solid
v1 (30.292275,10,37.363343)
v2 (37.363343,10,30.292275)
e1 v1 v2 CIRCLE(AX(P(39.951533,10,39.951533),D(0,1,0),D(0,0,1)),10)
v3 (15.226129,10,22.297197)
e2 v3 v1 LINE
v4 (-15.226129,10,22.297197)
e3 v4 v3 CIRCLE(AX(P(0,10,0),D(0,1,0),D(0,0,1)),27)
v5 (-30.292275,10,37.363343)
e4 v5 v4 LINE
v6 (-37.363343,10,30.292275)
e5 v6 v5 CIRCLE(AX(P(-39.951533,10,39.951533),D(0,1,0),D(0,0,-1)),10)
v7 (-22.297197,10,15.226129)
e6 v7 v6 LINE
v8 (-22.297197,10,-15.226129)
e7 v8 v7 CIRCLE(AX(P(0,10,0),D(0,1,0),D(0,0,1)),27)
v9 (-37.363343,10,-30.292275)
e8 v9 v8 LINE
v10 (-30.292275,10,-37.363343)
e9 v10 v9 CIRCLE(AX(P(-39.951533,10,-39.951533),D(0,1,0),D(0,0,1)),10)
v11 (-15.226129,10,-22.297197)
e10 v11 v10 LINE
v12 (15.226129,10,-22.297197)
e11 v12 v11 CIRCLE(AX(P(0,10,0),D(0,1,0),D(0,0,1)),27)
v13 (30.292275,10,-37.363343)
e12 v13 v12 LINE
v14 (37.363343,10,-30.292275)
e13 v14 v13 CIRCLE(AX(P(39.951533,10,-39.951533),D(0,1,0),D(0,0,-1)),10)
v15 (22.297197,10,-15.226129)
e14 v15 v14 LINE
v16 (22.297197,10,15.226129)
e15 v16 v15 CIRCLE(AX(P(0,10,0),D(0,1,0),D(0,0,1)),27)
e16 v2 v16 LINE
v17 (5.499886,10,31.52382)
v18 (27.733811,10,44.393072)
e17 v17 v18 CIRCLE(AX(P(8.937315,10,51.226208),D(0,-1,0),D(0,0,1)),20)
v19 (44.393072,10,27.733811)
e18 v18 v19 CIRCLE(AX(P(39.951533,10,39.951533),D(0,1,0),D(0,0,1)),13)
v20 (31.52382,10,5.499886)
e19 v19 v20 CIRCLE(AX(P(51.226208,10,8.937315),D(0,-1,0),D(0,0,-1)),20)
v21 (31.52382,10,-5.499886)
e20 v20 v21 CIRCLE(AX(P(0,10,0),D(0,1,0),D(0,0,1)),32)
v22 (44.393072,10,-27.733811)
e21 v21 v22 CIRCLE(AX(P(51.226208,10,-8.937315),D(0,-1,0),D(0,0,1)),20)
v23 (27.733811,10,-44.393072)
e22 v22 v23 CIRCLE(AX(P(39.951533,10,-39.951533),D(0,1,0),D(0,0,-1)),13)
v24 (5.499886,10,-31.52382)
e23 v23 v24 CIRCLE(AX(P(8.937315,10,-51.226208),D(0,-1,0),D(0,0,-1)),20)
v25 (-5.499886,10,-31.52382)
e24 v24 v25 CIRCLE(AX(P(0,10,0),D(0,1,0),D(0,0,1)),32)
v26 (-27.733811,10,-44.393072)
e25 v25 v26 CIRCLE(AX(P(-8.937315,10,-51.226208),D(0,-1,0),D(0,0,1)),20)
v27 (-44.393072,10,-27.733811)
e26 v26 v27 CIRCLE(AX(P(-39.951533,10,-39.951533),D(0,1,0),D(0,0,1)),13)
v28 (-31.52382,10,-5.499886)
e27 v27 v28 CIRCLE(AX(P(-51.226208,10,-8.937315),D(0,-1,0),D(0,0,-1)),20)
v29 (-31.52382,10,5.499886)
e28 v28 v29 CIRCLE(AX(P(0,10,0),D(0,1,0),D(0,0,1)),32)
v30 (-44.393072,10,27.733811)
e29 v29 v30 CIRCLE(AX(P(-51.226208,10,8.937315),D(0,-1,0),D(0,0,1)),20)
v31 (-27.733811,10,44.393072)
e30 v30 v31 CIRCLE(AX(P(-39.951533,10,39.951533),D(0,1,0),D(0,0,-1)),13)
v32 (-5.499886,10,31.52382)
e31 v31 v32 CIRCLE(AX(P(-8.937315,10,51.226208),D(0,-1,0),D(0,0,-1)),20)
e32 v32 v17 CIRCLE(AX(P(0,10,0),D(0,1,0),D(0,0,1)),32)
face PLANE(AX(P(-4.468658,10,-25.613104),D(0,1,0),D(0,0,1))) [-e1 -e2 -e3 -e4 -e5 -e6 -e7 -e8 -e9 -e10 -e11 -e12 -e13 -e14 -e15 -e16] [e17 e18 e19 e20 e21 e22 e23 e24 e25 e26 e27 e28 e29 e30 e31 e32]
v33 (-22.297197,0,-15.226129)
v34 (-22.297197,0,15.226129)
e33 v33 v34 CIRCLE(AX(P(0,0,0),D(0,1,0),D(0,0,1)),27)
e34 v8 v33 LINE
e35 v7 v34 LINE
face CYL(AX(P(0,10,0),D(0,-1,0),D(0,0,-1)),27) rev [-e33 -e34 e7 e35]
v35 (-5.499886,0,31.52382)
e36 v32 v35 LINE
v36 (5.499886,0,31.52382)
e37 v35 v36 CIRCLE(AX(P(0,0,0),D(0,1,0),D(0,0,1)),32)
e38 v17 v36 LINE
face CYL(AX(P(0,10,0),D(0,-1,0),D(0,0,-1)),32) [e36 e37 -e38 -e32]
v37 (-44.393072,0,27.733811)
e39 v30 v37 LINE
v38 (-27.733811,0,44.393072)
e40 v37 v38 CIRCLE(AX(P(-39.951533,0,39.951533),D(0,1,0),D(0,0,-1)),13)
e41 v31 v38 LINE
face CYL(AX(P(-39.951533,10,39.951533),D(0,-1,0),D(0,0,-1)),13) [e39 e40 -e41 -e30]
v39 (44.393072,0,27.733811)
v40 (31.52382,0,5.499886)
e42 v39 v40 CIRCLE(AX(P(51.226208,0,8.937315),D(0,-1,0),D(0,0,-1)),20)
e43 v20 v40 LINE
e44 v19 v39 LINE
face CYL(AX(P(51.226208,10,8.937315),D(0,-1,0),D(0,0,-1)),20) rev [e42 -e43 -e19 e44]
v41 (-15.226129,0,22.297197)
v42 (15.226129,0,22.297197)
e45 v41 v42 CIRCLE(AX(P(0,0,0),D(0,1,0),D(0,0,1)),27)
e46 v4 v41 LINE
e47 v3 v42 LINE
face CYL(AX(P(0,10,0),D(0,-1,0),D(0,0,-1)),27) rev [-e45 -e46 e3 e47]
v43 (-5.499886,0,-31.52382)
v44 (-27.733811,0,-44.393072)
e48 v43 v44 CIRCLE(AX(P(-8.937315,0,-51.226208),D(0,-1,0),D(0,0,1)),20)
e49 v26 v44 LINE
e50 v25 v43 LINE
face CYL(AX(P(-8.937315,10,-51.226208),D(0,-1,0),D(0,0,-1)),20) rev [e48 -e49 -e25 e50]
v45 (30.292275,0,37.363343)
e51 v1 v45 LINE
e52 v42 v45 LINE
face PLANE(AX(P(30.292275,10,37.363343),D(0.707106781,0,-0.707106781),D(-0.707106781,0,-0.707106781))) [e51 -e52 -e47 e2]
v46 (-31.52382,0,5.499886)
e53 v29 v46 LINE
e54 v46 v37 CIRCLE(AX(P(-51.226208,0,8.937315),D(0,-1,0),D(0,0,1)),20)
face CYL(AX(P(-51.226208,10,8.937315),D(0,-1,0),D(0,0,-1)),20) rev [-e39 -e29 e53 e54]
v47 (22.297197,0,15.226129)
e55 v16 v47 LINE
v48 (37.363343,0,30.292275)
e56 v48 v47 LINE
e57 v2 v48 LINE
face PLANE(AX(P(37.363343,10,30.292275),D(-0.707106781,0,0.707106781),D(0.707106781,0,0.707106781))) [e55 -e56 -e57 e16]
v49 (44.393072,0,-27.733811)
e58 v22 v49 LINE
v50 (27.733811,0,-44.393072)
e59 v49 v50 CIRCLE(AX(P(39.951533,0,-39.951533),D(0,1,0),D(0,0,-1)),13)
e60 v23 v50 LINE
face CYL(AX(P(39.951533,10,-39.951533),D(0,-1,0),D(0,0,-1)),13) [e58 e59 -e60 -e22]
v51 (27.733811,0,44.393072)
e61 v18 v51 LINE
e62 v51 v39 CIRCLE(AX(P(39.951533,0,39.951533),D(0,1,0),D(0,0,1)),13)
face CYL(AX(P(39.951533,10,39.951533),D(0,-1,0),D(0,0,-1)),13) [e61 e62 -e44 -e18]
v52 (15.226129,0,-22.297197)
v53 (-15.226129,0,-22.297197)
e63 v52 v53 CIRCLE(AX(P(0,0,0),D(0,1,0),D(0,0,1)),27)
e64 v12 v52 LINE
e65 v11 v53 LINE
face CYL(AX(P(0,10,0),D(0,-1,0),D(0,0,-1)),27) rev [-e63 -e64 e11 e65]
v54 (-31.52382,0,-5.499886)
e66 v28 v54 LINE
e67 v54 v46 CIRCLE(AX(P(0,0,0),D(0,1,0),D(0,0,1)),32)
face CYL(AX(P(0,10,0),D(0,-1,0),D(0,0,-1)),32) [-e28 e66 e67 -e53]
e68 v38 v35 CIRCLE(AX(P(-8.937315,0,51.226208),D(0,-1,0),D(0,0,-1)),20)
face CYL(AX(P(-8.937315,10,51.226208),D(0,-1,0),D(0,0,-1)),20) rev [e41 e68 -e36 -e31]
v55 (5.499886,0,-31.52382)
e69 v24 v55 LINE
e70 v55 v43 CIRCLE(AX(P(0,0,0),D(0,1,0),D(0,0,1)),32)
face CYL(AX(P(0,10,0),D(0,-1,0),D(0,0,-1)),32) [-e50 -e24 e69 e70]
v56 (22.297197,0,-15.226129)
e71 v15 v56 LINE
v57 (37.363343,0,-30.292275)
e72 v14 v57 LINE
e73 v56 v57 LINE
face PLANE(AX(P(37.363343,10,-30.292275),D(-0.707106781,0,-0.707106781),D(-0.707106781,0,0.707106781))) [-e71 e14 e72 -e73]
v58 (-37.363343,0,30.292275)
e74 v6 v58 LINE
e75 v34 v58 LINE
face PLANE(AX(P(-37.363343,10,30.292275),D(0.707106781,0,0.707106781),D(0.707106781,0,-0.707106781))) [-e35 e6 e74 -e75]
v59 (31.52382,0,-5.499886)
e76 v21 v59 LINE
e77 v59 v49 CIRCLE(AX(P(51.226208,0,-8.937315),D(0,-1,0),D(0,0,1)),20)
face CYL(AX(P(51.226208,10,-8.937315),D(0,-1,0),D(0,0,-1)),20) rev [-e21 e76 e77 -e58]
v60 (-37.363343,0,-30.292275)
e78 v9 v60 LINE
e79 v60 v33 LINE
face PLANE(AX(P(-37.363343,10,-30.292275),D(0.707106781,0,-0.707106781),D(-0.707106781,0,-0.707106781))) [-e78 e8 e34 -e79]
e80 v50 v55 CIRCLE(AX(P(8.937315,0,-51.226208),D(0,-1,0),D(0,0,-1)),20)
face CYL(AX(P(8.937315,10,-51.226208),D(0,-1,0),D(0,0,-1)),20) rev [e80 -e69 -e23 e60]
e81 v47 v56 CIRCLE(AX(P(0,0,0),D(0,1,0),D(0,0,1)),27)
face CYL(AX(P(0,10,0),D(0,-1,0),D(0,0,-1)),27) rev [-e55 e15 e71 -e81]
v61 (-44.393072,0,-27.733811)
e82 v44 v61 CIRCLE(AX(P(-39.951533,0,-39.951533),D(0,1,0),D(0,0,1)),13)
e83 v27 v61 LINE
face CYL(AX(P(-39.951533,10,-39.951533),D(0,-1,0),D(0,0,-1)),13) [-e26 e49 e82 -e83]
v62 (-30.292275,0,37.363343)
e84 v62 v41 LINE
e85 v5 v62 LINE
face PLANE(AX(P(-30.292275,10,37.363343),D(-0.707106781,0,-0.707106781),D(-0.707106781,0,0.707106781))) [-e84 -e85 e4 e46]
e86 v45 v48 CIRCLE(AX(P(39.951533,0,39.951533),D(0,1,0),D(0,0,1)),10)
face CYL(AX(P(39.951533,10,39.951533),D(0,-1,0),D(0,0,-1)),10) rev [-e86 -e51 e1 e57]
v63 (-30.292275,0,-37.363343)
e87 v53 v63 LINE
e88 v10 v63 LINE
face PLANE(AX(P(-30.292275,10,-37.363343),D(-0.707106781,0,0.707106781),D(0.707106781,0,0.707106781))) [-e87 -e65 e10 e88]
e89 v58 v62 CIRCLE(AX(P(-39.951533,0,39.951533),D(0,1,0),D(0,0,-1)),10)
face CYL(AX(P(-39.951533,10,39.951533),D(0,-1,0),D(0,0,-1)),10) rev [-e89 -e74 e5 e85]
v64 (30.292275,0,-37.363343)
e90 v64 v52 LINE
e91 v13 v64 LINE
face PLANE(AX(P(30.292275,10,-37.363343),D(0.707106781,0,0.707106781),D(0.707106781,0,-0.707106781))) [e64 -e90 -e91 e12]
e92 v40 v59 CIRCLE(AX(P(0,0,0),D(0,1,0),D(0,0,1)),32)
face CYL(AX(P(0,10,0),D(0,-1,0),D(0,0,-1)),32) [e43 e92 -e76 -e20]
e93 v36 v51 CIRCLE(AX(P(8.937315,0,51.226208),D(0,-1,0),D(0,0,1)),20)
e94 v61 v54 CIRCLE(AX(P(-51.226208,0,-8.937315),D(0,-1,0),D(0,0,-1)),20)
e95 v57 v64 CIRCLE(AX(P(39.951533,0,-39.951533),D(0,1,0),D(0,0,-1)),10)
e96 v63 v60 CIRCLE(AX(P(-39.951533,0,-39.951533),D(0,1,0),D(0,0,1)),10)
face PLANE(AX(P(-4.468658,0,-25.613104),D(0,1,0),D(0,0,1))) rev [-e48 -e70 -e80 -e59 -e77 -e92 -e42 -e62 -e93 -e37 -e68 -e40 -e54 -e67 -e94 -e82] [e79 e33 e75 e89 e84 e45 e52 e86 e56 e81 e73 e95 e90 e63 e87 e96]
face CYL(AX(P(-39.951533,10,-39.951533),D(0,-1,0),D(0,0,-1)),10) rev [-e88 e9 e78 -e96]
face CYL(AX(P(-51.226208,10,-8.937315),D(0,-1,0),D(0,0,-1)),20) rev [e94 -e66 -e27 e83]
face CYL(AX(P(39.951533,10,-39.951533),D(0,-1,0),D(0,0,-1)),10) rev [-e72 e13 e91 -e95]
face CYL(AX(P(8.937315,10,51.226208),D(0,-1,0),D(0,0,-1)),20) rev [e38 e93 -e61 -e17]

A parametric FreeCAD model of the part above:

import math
import FreeCAD as App
import Part
import Sketcher
from FreeCAD import Vector

doc = App.newDocument("Part")
body = doc.addObject("PartDesign::Body", "Body")

sketch1 = body.newObject("Sketcher::SketchObject", "Sketch")
sketch1.AttachmentSupport = (doc.getObject("XZ_Plane"), [""])
sketch1.MapMode = "FlatFace"
sketch1.addGeometry([
    Part.ArcOfCircle(Part.Circle(Vector(0, 0, 0), Vector(0, 0, 1), 32), math.radians(170.1), math.radians(189.9)),
    Part.ArcOfCircle(Part.Circle(Vector(-51, 9, 0), Vector(0, 0, 1), 20), math.radians(-10), math.radians(70)),
    Part.ArcOfCircle(Part.Circle(Vector(-40, 40, 0), Vector(0, 0, 1), 13), math.radians(20), math.radians(250)),
    Part.ArcOfCircle(Part.Circle(Vector(-9, 51, 0), Vector(0, 0, 1), 20), math.radians(-160), math.radians(-80)),
    Part.ArcOfCircle(Part.Circle(Vector(0, 0, 0), Vector(0, 0, 1), 32), math.radians(80.1), math.radians(99.9)),
    Part.ArcOfCircle(Part.Circle(Vector(9, 51, 0), Vector(0, 0, 1), 20), math.radians(-100), math.radians(-20)),
    Part.ArcOfCircle(Part.Circle(Vector(40, 40, 0), Vector(0, 0, 1), 13), math.radians(-70), math.radians(160)),
    Part.ArcOfCircle(Part.Circle(Vector(51, 9, 0), Vector(0, 0, 1), 20), math.radians(110), math.radians(190)),
    Part.ArcOfCircle(Part.Circle(Vector(0, 0, 0), Vector(0, 0, 1), 32), math.radians(-9.9), math.radians(9.9)),
    Part.ArcOfCircle(Part.Circle(Vector(51, -9, 0), Vector(0, 0, 1), 20), math.radians(170), math.radians(250)),
    Part.ArcOfCircle(Part.Circle(Vector(40, -40, 0), Vector(0, 0, 1), 13), math.radians(-160), math.radians(70)),
    Part.ArcOfCircle(Part.Circle(Vector(9, -51, 0), Vector(0, 0, 1), 20), math.radians(20), math.radians(100)),
    Part.ArcOfCircle(Part.Circle(Vector(0, 0, 0), Vector(0, 0, 1), 32), math.radians(-99.9), math.radians(-80.1)),
    Part.ArcOfCircle(Part.Circle(Vector(-9, -51, 0), Vector(0, 0, 1), 20), math.radians(80), math.radians(160)),
    Part.ArcOfCircle(Part.Circle(Vector(-40, -40, 0), Vector(0, 0, 1), 13), math.radians(110), math.radians(340)),
    Part.ArcOfCircle(Part.Circle(Vector(-51, -9, 0), Vector(0, 0, 1), 20), math.radians(-70), math.radians(10)),
    Part.LineSegment(Vector(-22, -15, 0), Vector(-37, -30, 0)),
    Part.ArcOfCircle(Part.Circle(Vector(-40, -40, 0), Vector(0, 0, 1), 10), math.radians(75), math.radians(375)),
    Part.LineSegment(Vector(-30, -37, 0), Vector(-15, -22, 0)),
    Part.ArcOfCircle(Part.Circle(Vector(0, 0, 0), Vector(0, 0, 1), 27), math.radians(-124), math.radians(-56)),
    Part.LineSegment(Vector(15, -22, 0), Vector(30, -37, 0)),
    Part.ArcOfCircle(Part.Circle(Vector(40, -40, 0), Vector(0, 0, 1), 10), math.radians(165), math.radians(465)),
    Part.LineSegment(Vector(37, -30, 0), Vector(22, -15, 0)),
    Part.ArcOfCircle(Part.Circle(Vector(0, 0, 0), Vector(0, 0, 1), 27), math.radians(-34), math.radians(34)),
    Part.LineSegment(Vector(22, 15, 0), Vector(37, 30, 0)),
    Part.ArcOfCircle(Part.Circle(Vector(40, 40, 0), Vector(0, 0, 1), 10), math.radians(-105), math.radians(195)),
    Part.LineSegment(Vector(30, 37, 0), Vector(15, 22, 0)),
    Part.ArcOfCircle(Part.Circle(Vector(0, 0, 0), Vector(0, 0, 1), 27), math.radians(56), math.radians(124)),
    Part.LineSegment(Vector(-15, 22, 0), Vector(-30, 37, 0)),
    Part.ArcOfCircle(Part.Circle(Vector(-40, 40, 0), Vector(0, 0, 1), 10), math.radians(-15), math.radians(285)),
    Part.LineSegment(Vector(-37, 30, 0), Vector(-22, 15, 0)),
    Part.ArcOfCircle(Part.Circle(Vector(0, 0, 0), Vector(0, 0, 1), 27), math.radians(146), math.radians(214)),
], False)
sketch1.addConstraint([
    Sketcher.Constraint("Tangent", 0, 1, 1, 1),
    Sketcher.Constraint("Tangent", 1, 2, 2, 2),
    Sketcher.Constraint("Tangent", 2, 1, 3, 1),
    Sketcher.Constraint("Tangent", 3, 2, 4, 2),
    Sketcher.Constraint("Tangent", 4, 1, 5, 1),
    Sketcher.Constraint("Tangent", 5, 2, 6, 2),
    Sketcher.Constraint("Tangent", 6, 1, 7, 1),
    Sketcher.Constraint("Tangent", 7, 2, 8, 2),
    Sketcher.Constraint("Tangent", 8, 1, 9, 1),
    Sketcher.Constraint("Tangent", 9, 2, 10, 2),
    Sketcher.Constraint("Tangent", 10, 1, 11, 1),
    Sketcher.Constraint("Tangent", 11, 2, 12, 2),
    Sketcher.Constraint("Tangent", 12, 1, 13, 1),
    Sketcher.Constraint("Tangent", 13, 2, 14, 2),
    Sketcher.Constraint("Tangent", 14, 1, 15, 1),
    Sketcher.Constraint("Tangent", 15, 2, 0, 2),
    Sketcher.Constraint("Coincident", 16, 2, 17, 1),
    Sketcher.Constraint("Coincident", 17, 2, 18, 1),
    Sketcher.Constraint("Coincident", 18, 2, 19, 1),
    Sketcher.Constraint("Coincident", 19, 2, 20, 1),
    Sketcher.Constraint("Coincident", 20, 2, 21, 1),
    Sketcher.Constraint("Coincident", 21, 2, 22, 1),
    Sketcher.Constraint("Coincident", 22, 2, 23, 1),
    Sketcher.Constraint("Coincident", 23, 2, 24, 1),
    Sketcher.Constraint("Coincident", 24, 2, 25, 1),
    Sketcher.Constraint("Coincident", 25, 2, 26, 1),
    Sketcher.Constraint("Coincident", 26, 2, 27, 1),
    Sketcher.Constraint("Coincident", 27, 2, 28, 1),
    Sketcher.Constraint("Coincident", 28, 2, 29, 1),
    Sketcher.Constraint("Coincident", 29, 2, 30, 1),
    Sketcher.Constraint("Coincident", 30, 2, 31, 1),
    Sketcher.Constraint("Coincident", 31, 2, 16, 1),
    Sketcher.Constraint("Coincident", 0, 3, -1, 1),
    Sketcher.Constraint("Coincident", 4, 3, -1, 1),
    Sketcher.Constraint("Coincident", 8, 3, -1, 1),
    Sketcher.Constraint("Coincident", 12, 3, -1, 1),
    Sketcher.Constraint("Coincident", 19, 3, -1, 1),
    Sketcher.Constraint("Coincident", 23, 3, -1, 1),
    Sketcher.Constraint("Coincident", 27, 3, -1, 1),
    Sketcher.Constraint("Coincident", 31, 3, -1, 1),
    Sketcher.Constraint("Coincident", 17, 3, 14, 3),
    Sketcher.Constraint("Coincident", 21, 3, 10, 3),
    Sketcher.Constraint("Coincident", 25, 3, 6, 3),
    Sketcher.Constraint("Coincident", 29, 3, 2, 3),
    Sketcher.Constraint("Equal", 1, 3),
    Sketcher.Constraint("Equal", 0, 4),
    Sketcher.Constraint("Equal", 3, 5),
    Sketcher.Constraint("Equal", 2, 6),
    Sketcher.Constraint("Equal", 5, 7),
    Sketcher.Constraint("Equal", 4, 8),
    Sketcher.Constraint("Equal", 7, 9),
    Sketcher.Constraint("Equal", 6, 10),
    Sketcher.Constraint("Equal", 9, 11),
    Sketcher.Constraint("Equal", 8, 12),
    Sketcher.Constraint("Equal", 11, 13),
    Sketcher.Constraint("Equal", 10, 14),
    Sketcher.Constraint("Equal", 13, 15),
    Sketcher.Constraint("Equal", 17, 21),
    Sketcher.Constraint("Equal", 19, 23),
    Sketcher.Constraint("Equal", 21, 25),
    Sketcher.Constraint("Equal", 23, 27),
    Sketcher.Constraint("Equal", 25, 29),
    Sketcher.Constraint("Equal", 27, 31),
    Sketcher.Constraint("Symmetric", 2, 3, 10, 3, -1, 1),
    Sketcher.Constraint("Symmetric", 6, 3, 14, 3, -1, 1),
    Sketcher.Constraint("Symmetric", 2, 3, 6, 3, -2),
    Sketcher.Constraint("Parallel", 16, 18),
    Sketcher.Constraint("Perpendicular", 18, 20),
    Sketcher.Constraint("Parallel", 20, 22),
    Sketcher.Constraint("Perpendicular", 22, 24),
    Sketcher.Constraint("Parallel", 24, 26),
    Sketcher.Constraint("Perpendicular", 26, 28),
    Sketcher.Constraint("Parallel", 28, 30),
    Sketcher.Constraint("Horizontal", 18, 2, 19, 2),
    Sketcher.Constraint("Horizontal", 17, 2, 20, 2),
    Sketcher.Constraint("Horizontal", 16, 2, 21, 2),
    Sketcher.Constraint("Horizontal", 26, 2, 27, 2),
    Sketcher.Constraint("Horizontal", 24, 2, 29, 2),
    Sketcher.Constraint("Vertical", 22, 2, 23, 2),
    Sketcher.Constraint("Vertical", 20, 2, 25, 2),
    Sketcher.Constraint("Equal", 16, 18),
    Sketcher.Constraint("Radius", 0, 32.0),
    Sketcher.Constraint("Radius", 1, 20.0),
    Sketcher.Constraint("Radius", 2, 13.0),
    Sketcher.Constraint("Radius", 17, 10.0),
    Sketcher.Constraint("Radius", 19, 27.0),
    Sketcher.Constraint("DistanceY", 15, 3, 0, 1, 14.437202),
    Sketcher.Constraint("DistanceX", 3, 2, 5, 3, 14.437202),
    Sketcher.Constraint("DistanceX", 18, 2, -1, 1, 15.226129),
])
pad1 = body.newObject("PartDesign::Pad", "Pad")
pad1.Profile = sketch1
pad1.Length = 10
pad1.Reversed = True

doc.recompute()
